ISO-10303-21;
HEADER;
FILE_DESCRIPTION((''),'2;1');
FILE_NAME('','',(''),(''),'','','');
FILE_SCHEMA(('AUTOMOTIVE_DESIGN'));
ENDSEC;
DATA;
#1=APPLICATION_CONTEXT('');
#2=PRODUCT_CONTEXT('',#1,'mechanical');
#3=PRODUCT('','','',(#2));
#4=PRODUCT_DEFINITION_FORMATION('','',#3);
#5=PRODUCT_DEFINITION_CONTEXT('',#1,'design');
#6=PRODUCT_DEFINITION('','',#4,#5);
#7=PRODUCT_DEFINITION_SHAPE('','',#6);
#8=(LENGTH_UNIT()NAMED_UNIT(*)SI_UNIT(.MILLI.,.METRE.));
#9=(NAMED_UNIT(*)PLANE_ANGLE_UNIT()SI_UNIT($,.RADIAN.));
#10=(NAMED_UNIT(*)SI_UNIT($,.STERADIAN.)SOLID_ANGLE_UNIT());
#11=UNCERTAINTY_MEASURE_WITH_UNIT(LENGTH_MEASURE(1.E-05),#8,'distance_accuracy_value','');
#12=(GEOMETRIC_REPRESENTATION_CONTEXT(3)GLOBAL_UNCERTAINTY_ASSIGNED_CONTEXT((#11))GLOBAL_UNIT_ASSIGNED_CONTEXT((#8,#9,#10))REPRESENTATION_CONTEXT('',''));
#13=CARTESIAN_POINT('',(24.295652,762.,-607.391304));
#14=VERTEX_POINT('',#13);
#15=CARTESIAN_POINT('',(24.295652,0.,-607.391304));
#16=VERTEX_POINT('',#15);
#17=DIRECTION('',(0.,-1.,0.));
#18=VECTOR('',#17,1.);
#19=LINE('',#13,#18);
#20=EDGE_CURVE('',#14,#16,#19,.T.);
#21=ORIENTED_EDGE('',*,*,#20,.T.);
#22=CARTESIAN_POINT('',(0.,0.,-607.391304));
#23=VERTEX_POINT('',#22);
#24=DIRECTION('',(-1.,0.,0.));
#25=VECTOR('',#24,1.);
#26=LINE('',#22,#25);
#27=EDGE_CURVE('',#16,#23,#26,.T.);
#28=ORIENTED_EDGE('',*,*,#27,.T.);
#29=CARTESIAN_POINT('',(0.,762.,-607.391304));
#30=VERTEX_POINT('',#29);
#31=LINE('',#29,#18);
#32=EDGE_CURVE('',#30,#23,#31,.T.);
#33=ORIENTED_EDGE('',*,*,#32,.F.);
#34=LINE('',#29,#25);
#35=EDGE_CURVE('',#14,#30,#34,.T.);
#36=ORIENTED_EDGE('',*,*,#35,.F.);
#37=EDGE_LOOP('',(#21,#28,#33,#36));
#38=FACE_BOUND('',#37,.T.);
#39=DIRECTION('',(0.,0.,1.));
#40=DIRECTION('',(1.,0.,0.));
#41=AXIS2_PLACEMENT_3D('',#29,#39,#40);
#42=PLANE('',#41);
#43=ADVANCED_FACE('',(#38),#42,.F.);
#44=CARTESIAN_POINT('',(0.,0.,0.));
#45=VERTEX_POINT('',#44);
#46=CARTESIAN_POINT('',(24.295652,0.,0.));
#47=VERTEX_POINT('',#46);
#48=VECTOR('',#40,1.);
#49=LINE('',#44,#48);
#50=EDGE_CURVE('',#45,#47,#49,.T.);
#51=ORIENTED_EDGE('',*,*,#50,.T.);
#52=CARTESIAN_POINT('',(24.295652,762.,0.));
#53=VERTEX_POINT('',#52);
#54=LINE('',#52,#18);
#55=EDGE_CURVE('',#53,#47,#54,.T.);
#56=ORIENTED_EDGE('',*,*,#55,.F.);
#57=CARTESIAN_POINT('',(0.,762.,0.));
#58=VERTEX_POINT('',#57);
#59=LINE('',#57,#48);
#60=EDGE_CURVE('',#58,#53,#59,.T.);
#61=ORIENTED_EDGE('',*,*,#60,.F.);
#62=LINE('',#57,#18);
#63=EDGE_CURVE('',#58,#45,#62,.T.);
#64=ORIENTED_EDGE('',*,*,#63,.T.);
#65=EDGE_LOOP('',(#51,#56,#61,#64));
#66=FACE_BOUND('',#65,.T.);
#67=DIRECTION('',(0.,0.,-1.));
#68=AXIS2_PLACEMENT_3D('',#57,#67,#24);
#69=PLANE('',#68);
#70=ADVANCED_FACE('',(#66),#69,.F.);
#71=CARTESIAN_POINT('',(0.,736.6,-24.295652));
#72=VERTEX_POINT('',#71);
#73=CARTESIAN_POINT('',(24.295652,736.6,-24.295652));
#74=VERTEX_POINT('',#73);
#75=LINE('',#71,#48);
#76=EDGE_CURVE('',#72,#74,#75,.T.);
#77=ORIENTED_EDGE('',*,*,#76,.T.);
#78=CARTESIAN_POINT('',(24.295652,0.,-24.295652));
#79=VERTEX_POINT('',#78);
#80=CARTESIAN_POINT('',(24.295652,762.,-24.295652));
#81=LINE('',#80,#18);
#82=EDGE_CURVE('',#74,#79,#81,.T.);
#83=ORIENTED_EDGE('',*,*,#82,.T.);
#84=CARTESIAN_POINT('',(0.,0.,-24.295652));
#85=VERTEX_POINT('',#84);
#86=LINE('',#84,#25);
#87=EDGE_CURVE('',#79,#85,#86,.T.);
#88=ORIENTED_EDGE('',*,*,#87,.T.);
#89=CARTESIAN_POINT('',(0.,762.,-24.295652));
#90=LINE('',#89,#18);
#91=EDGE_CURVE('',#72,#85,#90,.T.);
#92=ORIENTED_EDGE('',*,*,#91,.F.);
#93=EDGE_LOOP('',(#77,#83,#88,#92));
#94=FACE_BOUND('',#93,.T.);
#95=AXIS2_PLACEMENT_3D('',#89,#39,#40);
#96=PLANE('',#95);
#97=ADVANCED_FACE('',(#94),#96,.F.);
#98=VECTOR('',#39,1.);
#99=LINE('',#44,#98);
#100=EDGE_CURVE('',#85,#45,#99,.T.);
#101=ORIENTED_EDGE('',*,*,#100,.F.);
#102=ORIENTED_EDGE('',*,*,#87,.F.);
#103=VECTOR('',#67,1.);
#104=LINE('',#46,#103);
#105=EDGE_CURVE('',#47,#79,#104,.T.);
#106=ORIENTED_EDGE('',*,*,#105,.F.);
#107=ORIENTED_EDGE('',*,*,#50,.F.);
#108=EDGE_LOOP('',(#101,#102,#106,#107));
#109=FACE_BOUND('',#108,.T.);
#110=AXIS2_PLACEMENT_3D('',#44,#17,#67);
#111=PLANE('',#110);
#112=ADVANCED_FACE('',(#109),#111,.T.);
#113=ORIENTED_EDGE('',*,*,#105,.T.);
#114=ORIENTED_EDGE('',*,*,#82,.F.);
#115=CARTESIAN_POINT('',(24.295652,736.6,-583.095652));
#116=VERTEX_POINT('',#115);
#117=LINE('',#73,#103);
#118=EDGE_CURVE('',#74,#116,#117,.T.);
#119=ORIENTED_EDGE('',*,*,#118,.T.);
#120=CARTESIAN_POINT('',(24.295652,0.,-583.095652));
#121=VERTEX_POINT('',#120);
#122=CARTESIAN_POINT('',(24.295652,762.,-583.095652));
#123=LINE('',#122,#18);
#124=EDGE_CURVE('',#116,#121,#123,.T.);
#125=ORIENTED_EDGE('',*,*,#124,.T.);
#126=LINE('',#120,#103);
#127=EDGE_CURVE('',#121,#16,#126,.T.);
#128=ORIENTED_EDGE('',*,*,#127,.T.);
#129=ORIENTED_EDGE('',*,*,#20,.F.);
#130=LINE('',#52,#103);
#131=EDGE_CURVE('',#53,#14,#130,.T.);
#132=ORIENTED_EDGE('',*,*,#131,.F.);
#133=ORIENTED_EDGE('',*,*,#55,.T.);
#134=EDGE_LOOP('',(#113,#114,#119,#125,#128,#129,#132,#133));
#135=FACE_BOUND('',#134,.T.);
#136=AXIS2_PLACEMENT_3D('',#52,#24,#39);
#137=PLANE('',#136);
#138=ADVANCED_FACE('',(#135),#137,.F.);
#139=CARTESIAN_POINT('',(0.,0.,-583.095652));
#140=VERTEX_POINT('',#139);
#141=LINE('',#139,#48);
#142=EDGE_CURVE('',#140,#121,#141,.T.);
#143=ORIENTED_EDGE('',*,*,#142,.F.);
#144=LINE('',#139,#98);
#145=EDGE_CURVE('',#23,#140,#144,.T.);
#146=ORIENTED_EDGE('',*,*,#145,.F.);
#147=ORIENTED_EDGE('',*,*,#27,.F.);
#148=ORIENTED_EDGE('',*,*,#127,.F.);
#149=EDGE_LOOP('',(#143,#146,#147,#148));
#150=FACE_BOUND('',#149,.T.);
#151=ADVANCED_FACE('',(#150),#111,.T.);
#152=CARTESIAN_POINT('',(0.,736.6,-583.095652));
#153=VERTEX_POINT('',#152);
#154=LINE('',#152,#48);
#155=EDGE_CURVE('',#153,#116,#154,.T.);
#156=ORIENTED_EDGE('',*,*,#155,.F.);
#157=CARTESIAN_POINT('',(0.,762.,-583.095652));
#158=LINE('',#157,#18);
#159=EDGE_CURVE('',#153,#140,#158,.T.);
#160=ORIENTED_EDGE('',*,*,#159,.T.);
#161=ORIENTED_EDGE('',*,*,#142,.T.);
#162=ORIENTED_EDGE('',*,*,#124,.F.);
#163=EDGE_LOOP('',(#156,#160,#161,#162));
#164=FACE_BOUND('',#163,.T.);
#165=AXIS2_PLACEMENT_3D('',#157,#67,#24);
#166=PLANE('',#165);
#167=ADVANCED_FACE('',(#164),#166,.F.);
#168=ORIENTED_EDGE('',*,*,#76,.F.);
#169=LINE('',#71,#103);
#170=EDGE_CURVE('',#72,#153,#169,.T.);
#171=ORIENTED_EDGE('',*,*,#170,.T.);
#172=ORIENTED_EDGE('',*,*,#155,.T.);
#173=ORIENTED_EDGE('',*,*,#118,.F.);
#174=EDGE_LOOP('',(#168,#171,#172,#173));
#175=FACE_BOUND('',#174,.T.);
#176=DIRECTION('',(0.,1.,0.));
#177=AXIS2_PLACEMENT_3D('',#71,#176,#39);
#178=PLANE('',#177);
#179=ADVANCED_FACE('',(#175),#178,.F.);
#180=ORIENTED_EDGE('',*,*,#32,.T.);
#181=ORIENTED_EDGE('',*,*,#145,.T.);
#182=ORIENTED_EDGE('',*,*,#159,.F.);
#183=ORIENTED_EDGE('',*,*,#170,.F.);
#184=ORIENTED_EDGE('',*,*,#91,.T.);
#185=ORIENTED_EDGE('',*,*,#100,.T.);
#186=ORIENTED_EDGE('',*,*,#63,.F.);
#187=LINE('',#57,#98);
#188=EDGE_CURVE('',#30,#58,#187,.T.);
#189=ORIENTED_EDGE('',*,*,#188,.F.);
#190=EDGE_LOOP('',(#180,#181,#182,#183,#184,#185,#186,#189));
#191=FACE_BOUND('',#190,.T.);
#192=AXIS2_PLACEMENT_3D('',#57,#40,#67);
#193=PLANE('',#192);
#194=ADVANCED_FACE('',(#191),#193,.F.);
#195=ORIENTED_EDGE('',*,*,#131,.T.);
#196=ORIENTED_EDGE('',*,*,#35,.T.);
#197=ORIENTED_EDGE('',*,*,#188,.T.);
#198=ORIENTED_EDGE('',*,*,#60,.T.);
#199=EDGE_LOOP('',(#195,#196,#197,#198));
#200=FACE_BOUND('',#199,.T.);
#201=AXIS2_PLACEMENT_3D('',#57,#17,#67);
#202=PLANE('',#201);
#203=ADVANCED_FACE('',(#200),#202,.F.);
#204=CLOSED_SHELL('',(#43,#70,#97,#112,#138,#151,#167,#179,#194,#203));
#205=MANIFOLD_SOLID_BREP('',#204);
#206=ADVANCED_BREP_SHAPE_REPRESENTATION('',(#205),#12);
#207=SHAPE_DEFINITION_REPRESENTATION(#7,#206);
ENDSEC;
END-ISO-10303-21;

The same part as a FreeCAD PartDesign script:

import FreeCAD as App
import Part
import Sketcher

V = App.Vector
Q = App.Units.Quantity

doc = App.newDocument("Part")
params = doc.addObject("Spreadsheet::Sheet", "Params")
for row, (alias, value) in enumerate([
    ("pad1_length", "30 in"),
    ("pad2_length", "30 in"),
    ("sketch3_height", "1 in"),
    ("pad3_length", "22 in"),
], start=1):
    params.set(f"A{row}", alias)
    params.set(f"B{row}", "=" + value)
    params.setAlias(f"B{row}", alias)

body = doc.addObject("PartDesign::Body", "Body")

# Sketch on XZ plane
sketch1 = doc.addObject("Sketcher::SketchObject", "Sketch")
body.addObject(sketch1)
sketch1.AttachmentSupport = (doc.XZ_Plane, [""])
sketch1.MapMode = "FlatFace"
sketch1.addGeometry([
    Part.LineSegment(V(0, -24, 0), V(0, 0, 0)),
    Part.LineSegment(V(0, 0, 0), V(24, 0, 0)),
    Part.LineSegment(V(24, 0, 0), V(24, -24, 0)),
    Part.LineSegment(V(24, -24, 0), V(0, -24, 0)),
], False)
sketch1.addConstraint([
    Sketcher.Constraint("Coincident", 0, 2, 1, 1),
    Sketcher.Constraint("Coincident", 1, 2, 2, 1),
    Sketcher.Constraint("Coincident", 2, 2, 3, 1),
    Sketcher.Constraint("Coincident", 3, 2, 0, 1),
    Sketcher.Constraint("Vertical", 0),
    Sketcher.Constraint("Horizontal", 1),
    Sketcher.Constraint("Vertical", 2),
    Sketcher.Constraint("Horizontal", 3),
    Sketcher.Constraint("Coincident", 0, 2, -1, 1),
    Sketcher.Constraint("Equal", 3, 0),
    Sketcher.Constraint("DistanceX", 1, 1, 1, 2, Q("24.295652 mm")),
])
pad1 = doc.addObject("PartDesign::Pad", "Pad")
body.addObject(pad1)
pad1.Profile = sketch1
pad1.setExpression("Length", "Params.pad1_length")
pad1.Reversed = True
body2 = doc.addObject("PartDesign::Body", "Body001")

# Sketch on XZ plane
sketch2 = doc.addObject("Sketcher::SketchObject", "Sketch001")
body2.addObject(sketch2)
sketch2.AttachmentSupport = (doc.getObject("XZ_Plane001"), [""])
sketch2.MapMode = "FlatFace"
sketch2.addGeometry([
    Part.LineSegment(V(0, -607, 0), V(0, -583, 0)),
    Part.LineSegment(V(0, -583, 0), V(24, -583, 0)),
    Part.LineSegment(V(24, -583, 0), V(24, -607, 0)),
    Part.LineSegment(V(24, -607, 0), V(0, -607, 0)),
], False)
sketch2.addConstraint([
    Sketcher.Constraint("Coincident", 0, 2, 1, 1),
    Sketcher.Constraint("Coincident", 1, 2, 2, 1),
    Sketcher.Constraint("Coincident", 2, 2, 3, 1),
    Sketcher.Constraint("Coincident", 3, 2, 0, 1),
    Sketcher.Constraint("Vertical", 0),
    Sketcher.Constraint("Horizontal", 1),
    Sketcher.Constraint("Vertical", 2),
    Sketcher.Constraint("Horizontal", 3),
    Sketcher.Constraint("PointOnObject", 0, 2, -2),
    Sketcher.Constraint("Equal", 3, 0),
    Sketcher.Constraint("DistanceX", 1, 1, 1, 2, Q("24.295652 mm")),
    Sketcher.Constraint("DistanceY", 0, 2, -1, 1, Q("583.095652 mm")),
])
pad2 = doc.addObject("PartDesign::Pad", "Pad001")
body2.addObject(pad2)
pad2.Profile = sketch2
pad2.setExpression("Length", "Params.pad2_length")
pad2.Reversed = True
body.AllowCompound = True
doc.recompute()

boolean = doc.addObject("PartDesign::Boolean", "Boolean")
body.addObject(boolean)
boolean.Type = "Fuse"
boolean.addObjects([body2])

# Sketch on XY plane
sketch3 = doc.addObject("Sketcher::SketchObject", "Sketch002")
body.addObject(sketch3)
sketch3.AttachmentSupport = (doc.XY_Plane, [""])
sketch3.MapMode = "FlatFace"
sketch3.AttachmentOffset = App.Placement(V(0, 0, -583.095652), App.Rotation())
sketch3.addGeometry([
    Part.LineSegment(V(0, 762, 0), V(0, 737, 0)),
    Part.LineSegment(V(0, 737, 0), V(24, 737, 0)),
    Part.LineSegment(V(24, 737, 0), V(24, 762, 0)),
    Part.LineSegment(V(24, 762, 0), V(0, 762, 0)),
], False)
sketch3.addConstraint([
    Sketcher.Constraint("Coincident", 0, 2, 1, 1),
    Sketcher.Constraint("Coincident", 1, 2, 2, 1),
    Sketcher.Constraint("Coincident", 2, 2, 3, 1),
    Sketcher.Constraint("Coincident", 3, 2, 0, 1),
    Sketcher.Constraint("Vertical", 0),
    Sketcher.Constraint("Horizontal", 1),
    Sketcher.Constraint("Vertical", 2),
    Sketcher.Constraint("Horizontal", 3),
    Sketcher.Constraint("PointOnObject", 0, 2, -2),
    Sketcher.Constraint("DistanceY", 0, 2, 0, 1, Q("1 in")),
    Sketcher.Constraint("DistanceY", -1, 1, 0, 2, Q("29 in")),
    Sketcher.Constraint("DistanceX", 1, 1, 1, 2, Q("24.295652 mm")),
])
sketch3.setExpression("Constraints[9]", "Params.sketch3_height")
pad3 = doc.addObject("PartDesign::Pad", "Pad002")
body.addObject(pad3)
pad3.Profile = sketch3
pad3.setExpression("Length", "Params.pad3_length")

doc.recompute()
